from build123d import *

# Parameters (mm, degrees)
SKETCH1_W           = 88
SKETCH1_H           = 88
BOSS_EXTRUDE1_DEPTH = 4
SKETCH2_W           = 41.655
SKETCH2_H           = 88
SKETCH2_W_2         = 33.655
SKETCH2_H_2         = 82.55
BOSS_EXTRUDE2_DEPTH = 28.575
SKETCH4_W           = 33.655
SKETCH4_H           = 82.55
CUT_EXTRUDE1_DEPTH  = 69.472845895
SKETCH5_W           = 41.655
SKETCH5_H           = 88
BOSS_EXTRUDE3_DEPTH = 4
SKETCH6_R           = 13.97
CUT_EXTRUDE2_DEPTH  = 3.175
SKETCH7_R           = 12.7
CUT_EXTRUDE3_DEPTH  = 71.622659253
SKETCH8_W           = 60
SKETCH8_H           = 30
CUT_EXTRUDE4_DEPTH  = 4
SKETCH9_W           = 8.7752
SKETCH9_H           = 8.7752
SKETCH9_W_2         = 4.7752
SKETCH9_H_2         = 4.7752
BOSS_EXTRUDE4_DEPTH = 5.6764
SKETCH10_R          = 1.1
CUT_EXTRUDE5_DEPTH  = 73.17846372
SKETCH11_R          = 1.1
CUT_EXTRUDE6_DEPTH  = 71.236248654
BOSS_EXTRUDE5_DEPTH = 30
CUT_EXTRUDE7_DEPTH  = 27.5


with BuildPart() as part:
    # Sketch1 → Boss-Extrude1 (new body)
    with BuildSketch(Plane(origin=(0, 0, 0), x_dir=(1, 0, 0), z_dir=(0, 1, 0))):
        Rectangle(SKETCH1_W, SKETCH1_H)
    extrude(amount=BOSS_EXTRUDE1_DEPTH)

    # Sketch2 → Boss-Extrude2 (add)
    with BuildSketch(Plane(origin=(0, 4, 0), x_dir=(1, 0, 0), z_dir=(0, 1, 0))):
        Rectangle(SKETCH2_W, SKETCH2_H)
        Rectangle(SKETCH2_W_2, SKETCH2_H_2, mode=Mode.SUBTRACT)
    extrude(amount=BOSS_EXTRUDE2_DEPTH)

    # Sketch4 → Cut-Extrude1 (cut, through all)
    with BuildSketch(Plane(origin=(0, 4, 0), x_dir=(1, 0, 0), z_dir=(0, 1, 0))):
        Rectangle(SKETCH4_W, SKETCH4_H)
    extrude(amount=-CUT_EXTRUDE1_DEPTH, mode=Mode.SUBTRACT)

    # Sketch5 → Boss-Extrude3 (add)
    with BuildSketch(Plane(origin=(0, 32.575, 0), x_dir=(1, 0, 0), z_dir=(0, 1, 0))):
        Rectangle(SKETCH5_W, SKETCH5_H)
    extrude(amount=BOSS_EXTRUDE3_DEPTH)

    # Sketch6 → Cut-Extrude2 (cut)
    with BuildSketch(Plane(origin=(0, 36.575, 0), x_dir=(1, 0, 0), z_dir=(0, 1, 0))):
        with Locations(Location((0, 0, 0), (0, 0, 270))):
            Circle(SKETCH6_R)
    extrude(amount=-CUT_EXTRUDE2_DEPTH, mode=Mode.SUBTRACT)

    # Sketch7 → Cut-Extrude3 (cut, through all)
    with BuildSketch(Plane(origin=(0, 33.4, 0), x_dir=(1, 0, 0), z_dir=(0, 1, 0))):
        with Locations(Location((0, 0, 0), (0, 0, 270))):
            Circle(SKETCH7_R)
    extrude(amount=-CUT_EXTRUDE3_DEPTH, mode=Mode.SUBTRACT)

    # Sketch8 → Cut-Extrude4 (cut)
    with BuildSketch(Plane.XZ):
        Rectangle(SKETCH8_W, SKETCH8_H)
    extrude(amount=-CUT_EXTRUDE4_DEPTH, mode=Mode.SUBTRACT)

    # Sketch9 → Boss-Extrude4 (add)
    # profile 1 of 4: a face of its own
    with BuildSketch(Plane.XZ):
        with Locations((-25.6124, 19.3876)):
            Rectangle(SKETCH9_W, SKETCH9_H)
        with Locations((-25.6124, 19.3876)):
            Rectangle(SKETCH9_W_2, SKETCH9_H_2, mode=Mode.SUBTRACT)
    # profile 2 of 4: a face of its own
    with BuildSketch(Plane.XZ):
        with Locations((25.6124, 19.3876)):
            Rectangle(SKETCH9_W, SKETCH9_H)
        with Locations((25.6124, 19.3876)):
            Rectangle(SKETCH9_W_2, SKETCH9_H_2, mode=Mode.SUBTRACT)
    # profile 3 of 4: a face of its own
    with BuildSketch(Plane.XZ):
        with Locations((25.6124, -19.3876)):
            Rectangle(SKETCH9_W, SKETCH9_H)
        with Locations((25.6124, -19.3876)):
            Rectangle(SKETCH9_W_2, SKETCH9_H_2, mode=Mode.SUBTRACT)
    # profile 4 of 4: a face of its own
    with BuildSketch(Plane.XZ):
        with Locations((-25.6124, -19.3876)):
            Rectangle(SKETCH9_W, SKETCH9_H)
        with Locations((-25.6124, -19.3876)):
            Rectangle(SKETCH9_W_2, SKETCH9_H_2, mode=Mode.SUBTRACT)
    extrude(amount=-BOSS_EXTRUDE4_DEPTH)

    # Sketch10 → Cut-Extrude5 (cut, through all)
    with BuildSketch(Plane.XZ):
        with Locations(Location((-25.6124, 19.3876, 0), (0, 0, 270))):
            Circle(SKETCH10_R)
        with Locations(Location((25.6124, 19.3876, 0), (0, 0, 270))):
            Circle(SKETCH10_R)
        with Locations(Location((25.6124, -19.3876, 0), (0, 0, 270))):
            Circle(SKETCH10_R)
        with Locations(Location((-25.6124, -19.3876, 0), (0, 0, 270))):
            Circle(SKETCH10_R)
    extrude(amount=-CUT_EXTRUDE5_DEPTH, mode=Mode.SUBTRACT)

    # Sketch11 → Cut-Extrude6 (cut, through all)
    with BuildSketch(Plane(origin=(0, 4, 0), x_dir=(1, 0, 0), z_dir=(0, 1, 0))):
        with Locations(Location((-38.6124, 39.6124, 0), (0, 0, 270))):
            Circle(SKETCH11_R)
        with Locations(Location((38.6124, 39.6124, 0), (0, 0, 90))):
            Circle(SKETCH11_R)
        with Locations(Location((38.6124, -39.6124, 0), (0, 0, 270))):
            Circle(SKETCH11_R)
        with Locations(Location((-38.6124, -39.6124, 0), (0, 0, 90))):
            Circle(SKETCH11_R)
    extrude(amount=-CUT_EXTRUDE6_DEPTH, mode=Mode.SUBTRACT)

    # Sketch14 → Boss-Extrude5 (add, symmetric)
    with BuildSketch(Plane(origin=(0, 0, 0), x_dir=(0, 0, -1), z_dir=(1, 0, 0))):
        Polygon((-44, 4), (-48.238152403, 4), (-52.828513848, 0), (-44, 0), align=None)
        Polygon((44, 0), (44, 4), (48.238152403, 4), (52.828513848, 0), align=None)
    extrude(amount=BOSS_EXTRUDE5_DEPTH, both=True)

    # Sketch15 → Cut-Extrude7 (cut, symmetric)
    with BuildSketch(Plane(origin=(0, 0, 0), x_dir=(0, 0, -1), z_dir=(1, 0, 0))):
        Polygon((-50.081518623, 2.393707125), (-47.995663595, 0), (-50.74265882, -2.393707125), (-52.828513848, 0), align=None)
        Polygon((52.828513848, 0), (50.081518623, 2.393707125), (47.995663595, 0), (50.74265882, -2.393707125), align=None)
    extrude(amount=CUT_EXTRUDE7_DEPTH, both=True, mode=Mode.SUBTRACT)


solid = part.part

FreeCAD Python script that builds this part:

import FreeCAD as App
import Part
import Sketcher
Q = App.Units.Quantity


def add_polygon(sketch, points):
    """Adds a closed chain of lines whose ends are joined by coincident constraints."""
    first, n = sketch.GeometryCount, len(points)
    for a, b in zip(points, points[1:] + points[:1]):
        sketch.addGeometry(Part.LineSegment(App.Vector(*a, 0), App.Vector(*b, 0)), False)
    for i in range(n):
        sketch.addConstraint(Sketcher.Constraint("Coincident", first + i, 2, first + (i + 1) % n, 1))

doc = App.newDocument("Part")
body = doc.addObject("PartDesign::Body", "Body")

# Sketch on XZ plane
sketch1 = body.newObject("Sketcher::SketchObject", "Sketch")
sketch1.AttachmentSupport = (doc.getObject("XZ_Plane"), [""])
sketch1.MapMode = "FlatFace"
add_polygon(sketch1, [(-44, -44), (-44, 44), (44, 44), (44, -44)])  # lines 0-3
sketch1.addConstraint(Sketcher.Constraint("Vertical", 0))
sketch1.addConstraint(Sketcher.Constraint("Horizontal", 1))
sketch1.addConstraint(Sketcher.Constraint("Vertical", 2))
sketch1.addConstraint(Sketcher.Constraint("Horizontal", 3))
sketch1.addConstraint(Sketcher.Constraint("Symmetric", 0, 2, 2, 2, -1, 1))
sketch1.addConstraint(Sketcher.Constraint("Equal", 3, 0))
sketch1.addConstraint(Sketcher.Constraint("DistanceX", 1, 1, 1, 2, Q("88 mm")))
pad1 = body.newObject("PartDesign::Pad", "Pad")
pad1.Profile = sketch1
pad1.Length = 4
pad1.Reversed = True

# Sketch on XZ plane
sketch2 = body.newObject("Sketcher::SketchObject", "Sketch001")
sketch2.AttachmentSupport = (doc.getObject("XZ_Plane"), [""])
sketch2.MapMode = "FlatFace"
sketch2.AttachmentOffset = App.Placement(App.Vector(0, 0, -4), App.Rotation())
add_polygon(sketch2, [(-21, -44), (-21, 44), (21, 44), (21, -44)])  # lines 0-3
add_polygon(sketch2, [(17, 41), (-17, 41), (-17, -41), (17, -41)])  # lines 4-7
sketch2.addConstraint(Sketcher.Constraint("Vertical", 0))
sketch2.addConstraint(Sketcher.Constraint("Horizontal", 1))
sketch2.addConstraint(Sketcher.Constraint("Vertical", 2))
sketch2.addConstraint(Sketcher.Constraint("Horizontal", 3))
sketch2.addConstraint(Sketcher.Constraint("Horizontal", 4))
sketch2.addConstraint(Sketcher.Constraint("Vertical", 5))
sketch2.addConstraint(Sketcher.Constraint("Horizontal", 6))
sketch2.addConstraint(Sketcher.Constraint("Vertical", 7))
sketch2.addConstraint(Sketcher.Constraint("Symmetric", 0, 2, 2, 2, -1, 1))
sketch2.addConstraint(Sketcher.Constraint("Symmetric", 4, 2, 6, 2, -1, 1))
sketch2.addConstraint(Sketcher.Constraint("DistanceY", 5, 2, 5, 1, Q("3.25 in")))
sketch2.addConstraint(Sketcher.Constraint("DistanceX", 4, 2, 4, 1, Q("1.325 in")))
sketch2.addConstraint(Sketcher.Constraint("DistanceX", 1, 1, 1, 2, Q("41.655 mm")))
sketch2.addConstraint(Sketcher.Constraint("DistanceY", 0, 1, 0, 2, Q("88 mm")))
pad2 = body.newObject("PartDesign::Pad", "Pad001")
pad2.Profile = sketch2
pad2.Length = Q("1.125 in")
pad2.Reversed = True

# Sketch on XZ plane
sketch3 = body.newObject("Sketcher::SketchObject", "Sketch002")
sketch3.AttachmentSupport = (doc.getObject("XZ_Plane"), [""])
sketch3.MapMode = "FlatFace"
sketch3.AttachmentOffset = App.Placement(App.Vector(0, 0, -4), App.Rotation())
add_polygon(sketch3, [(-17, -41), (-17, 41), (17, 41), (17, -41)])  # lines 0-3
sketch3.addConstraint(Sketcher.Constraint("Vertical", 0))
sketch3.addConstraint(Sketcher.Constraint("Horizontal", 1))
sketch3.addConstraint(Sketcher.Constraint("Vertical", 2))
sketch3.addConstraint(Sketcher.Constraint("Horizontal", 3))
sketch3.addConstraint(Sketcher.Constraint("Symmetric", 0, 2, 2, 2, -1, 1))
sketch3.addConstraint(Sketcher.Constraint("DistanceY", 0, 1, 0, 2, Q("3.25 in")))
sketch3.addConstraint(Sketcher.Constraint("DistanceX", 1, 1, 1, 2, Q("1.325 in")))
pocket1 = body.newObject("PartDesign::Pocket", "Pocket")
pocket1.Profile = sketch3
pocket1.Type = "ThroughAll"
pocket1.Reversed = True

# Sketch on XZ plane
sketch4 = body.newObject("Sketcher::SketchObject", "Sketch003")
sketch4.AttachmentSupport = (doc.getObject("XZ_Plane"), [""])
sketch4.MapMode = "FlatFace"
sketch4.AttachmentOffset = App.Placement(App.Vector(0, 0, -32.575), App.Rotation())
add_polygon(sketch4, [(-21, -44), (-21, 44), (21, 44), (21, -44)])  # lines 0-3
sketch4.addConstraint(Sketcher.Constraint("Vertical", 0))
sketch4.addConstraint(Sketcher.Constraint("Horizontal", 1))
sketch4.addConstraint(Sketcher.Constraint("Vertical", 2))
sketch4.addConstraint(Sketcher.Constraint("Horizontal", 3))
sketch4.addConstraint(Sketcher.Constraint("Symmetric", 0, 2, 2, 2, -1, 1))
sketch4.addConstraint(Sketcher.Constraint("DistanceX", 1, 1, 1, 2, Q("41.655 mm")))
sketch4.addConstraint(Sketcher.Constraint("DistanceY", 0, 1, 0, 2, Q("88 mm")))
pad3 = body.newObject("PartDesign::Pad", "Pad002")
pad3.Profile = sketch4
pad3.Length = 4
pad3.Reversed = True

# Sketch on XZ plane
sketch5 = body.newObject("Sketcher::SketchObject", "Sketch004")
sketch5.AttachmentSupport = (doc.getObject("XZ_Plane"), [""])
sketch5.MapMode = "FlatFace"
sketch5.AttachmentOffset = App.Placement(App.Vector(0, 0, -36.575), App.Rotation())
sketch5.addGeometry(Part.Circle(App.Vector(0, 0, 0), App.Vector(0, 0, 1), 14), False)
sketch5.addConstraint(Sketcher.Constraint("Coincident", 0, 3, -1, 1))
sketch5.addConstraint(Sketcher.Constraint("Diameter", 0, Q("1.1 in")))
pocket2 = body.newObject("PartDesign::Pocket", "Pocket001")
pocket2.Profile = sketch5
pocket2.Length = Q("0.125 in")
pocket2.Reversed = True

# Sketch on XZ plane
sketch6 = body.newObject("Sketcher::SketchObject", "Sketch005")
sketch6.AttachmentSupport = (doc.getObject("XZ_Plane"), [""])
sketch6.MapMode = "FlatFace"
sketch6.AttachmentOffset = App.Placement(App.Vector(0, 0, -33.4), App.Rotation())
sketch6.addGeometry(Part.Circle(App.Vector(0, 0, 0), App.Vector(0, 0, 1), 13), False)
sketch6.addConstraint(Sketcher.Constraint("Coincident", 0, 3, -1, 1))
sketch6.addConstraint(Sketcher.Constraint("Diameter", 0, Q("1 in")))
pocket3 = body.newObject("PartDesign::Pocket", "Pocket002")
pocket3.Profile = sketch6
pocket3.Type = "ThroughAll"
pocket3.Reversed = True

# Sketch on XZ plane
sketch7 = body.newObject("Sketcher::SketchObject", "Sketch006")
sketch7.AttachmentSupport = (doc.getObject("XZ_Plane"), [""])
sketch7.MapMode = "FlatFace"
add_polygon(sketch7, [(-30, 15), (-30, -15), (30, -15), (30, 15)])  # lines 0-3
sketch7.addConstraint(Sketcher.Constraint("Vertical", 0))
sketch7.addConstraint(Sketcher.Constraint("Horizontal", 1))
sketch7.addConstraint(Sketcher.Constraint("Vertical", 2))
sketch7.addConstraint(Sketcher.Constraint("Horizontal", 3))
sketch7.addConstraint(Sketcher.Constraint("Symmetric", 0, 2, 2, 2, -1, 1))
sketch7.addConstraint(Sketcher.Constraint("DistanceX", 1, 1, 1, 2, Q("60 mm")))
sketch7.addConstraint(Sketcher.Constraint("DistanceY", 0, 2, 0, 1, Q("30 mm")))
pocket4 = body.newObject("PartDesign::Pocket", "Pocket003")
pocket4.Profile = sketch7
pocket4.Length = 4

# Sketch on XZ plane
sketch8 = body.newObject("Sketcher::SketchObject", "Sketch007")
sketch8.AttachmentSupport = (doc.getObject("XZ_Plane"), [""])
sketch8.MapMode = "FlatFace"
add_polygon(sketch8, [(-30, 23.8), (-30, 15), (-21.2, 15), (-21.2, 23.8)])  # lines 0-3
add_polygon(sketch8, [(-23.2, 17), (-28, 17), (-28, 21.8), (-23.2, 21.8)])  # lines 4-7
add_polygon(sketch8, [(21.2, 23.8), (21.2, 15), (30, 15), (30, 23.8)])  # lines 8-11
add_polygon(sketch8, [(28, 17), (23.2, 17), (23.2, 21.8), (28, 21.8)])  # lines 12-15
add_polygon(sketch8, [(21.2, -15), (21.2, -23.8), (30, -23.8), (30, -15)])  # lines 16-19
add_polygon(sketch8, [(28, -21.8), (23.2, -21.8), (23.2, -17), (28, -17)])  # lines 20-23
add_polygon(sketch8, [(-30, -15), (-30, -23.8), (-21.2, -23.8), (-21.2, -15)])  # lines 24-27
add_polygon(sketch8, [(-23.2, -21.8), (-28, -21.8), (-28, -17), (-23.2, -17)])  # lines 28-31
sketch8.addConstraint(Sketcher.Constraint("Vertical", 0))
sketch8.addConstraint(Sketcher.Constraint("Horizontal", 1))
sketch8.addConstraint(Sketcher.Constraint("Vertical", 2))
sketch8.addConstraint(Sketcher.Constraint("Horizontal", 3))
sketch8.addConstraint(Sketcher.Constraint("Horizontal", 4))
sketch8.addConstraint(Sketcher.Constraint("Vertical", 5))
sketch8.addConstraint(Sketcher.Constraint("Horizontal", 6))
sketch8.addConstraint(Sketcher.Constraint("Vertical", 7))
sketch8.addConstraint(Sketcher.Constraint("Vertical", 8))
sketch8.addConstraint(Sketcher.Constraint("Horizontal", 9))
sketch8.addConstraint(Sketcher.Constraint("Vertical", 10))
sketch8.addConstraint(Sketcher.Constraint("Horizontal", 11))
sketch8.addConstraint(Sketcher.Constraint("Horizontal", 12))
sketch8.addConstraint(Sketcher.Constraint("Vertical", 13))
sketch8.addConstraint(Sketcher.Constraint("Horizontal", 14))
sketch8.addConstraint(Sketcher.Constraint("Vertical", 15))
sketch8.addConstraint(Sketcher.Constraint("Vertical", 16))
sketch8.addConstraint(Sketcher.Constraint("Horizontal", 17))
sketch8.addConstraint(Sketcher.Constraint("Vertical", 18))
sketch8.addConstraint(Sketcher.Constraint("Horizontal", 19))
sketch8.addConstraint(Sketcher.Constraint("Horizontal", 20))
sketch8.addConstraint(Sketcher.Constraint("Vertical", 21))
sketch8.addConstraint(Sketcher.Constraint("Horizontal", 22))
sketch8.addConstraint(Sketcher.Constraint("Vertical", 23))
sketch8.addConstraint(Sketcher.Constraint("Vertical", 24))
sketch8.addConstraint(Sketcher.Constraint("Horizontal", 25))
sketch8.addConstraint(Sketcher.Constraint("Vertical", 26))
sketch8.addConstraint(Sketcher.Constraint("Horizontal", 27))
sketch8.addConstraint(Sketcher.Constraint("Horizontal", 28))
sketch8.addConstraint(Sketcher.Constraint("Vertical", 29))
sketch8.addConstraint(Sketcher.Constraint("Horizontal", 30))
sketch8.addConstraint(Sketcher.Constraint("Vertical", 31))
sketch8.addConstraint(Sketcher.Constraint("Symmetric", 2, 2, 16, 2, -1, 1))
sketch8.addConstraint(Sketcher.Constraint("Symmetric", 0, 2, 18, 2, -1, 1))
sketch8.addConstraint(Sketcher.Constraint("Symmetric", 6, 2, 20, 2, -1, 1))
sketch8.addConstraint(Sketcher.Constraint("Symmetric", 4, 2, 22, 2, -1, 1))
sketch8.addConstraint(Sketcher.Constraint("Symmetric", 10, 2, 24, 2, -1, 1))
sketch8.addConstraint(Sketcher.Constraint("Symmetric", 8, 2, 26, 2, -1, 1))
sketch8.addConstraint(Sketcher.Constraint("Symmetric", 14, 2, 28, 2, -1, 1))
sketch8.addConstraint(Sketcher.Constraint("Symmetric", 12, 2, 30, 2, -1, 1))
sketch8.addConstraint(Sketcher.Constraint("Symmetric", 1, 2, 8, 2, -2))
sketch8.addConstraint(Sketcher.Constraint("Symmetric", 3, 2, 10, 2, -2))
sketch8.addConstraint(Sketcher.Constraint("Symmetric", 7, 2, 12, 2, -2))
sketch8.addConstraint(Sketcher.Constraint("Symmetric", 5, 2, 14, 2, -2))
sketch8.addConstraint(Sketcher.Constraint("Equal", 27, 0))
sketch8.addConstraint(Sketcher.Constraint("Equal", 30, 5))
sketch8.addConstraint(Sketcher.Constraint("DistanceX", 4, 2, 4, 1, Q("0.188 in")))
sketch8.addConstraint(Sketcher.Constraint("DistanceX", 1, 1, 1, 2, Q("8.7752 mm")))
sketch8.addConstraint(Sketcher.Constraint("DistanceX", 0, 2, -1, 1, Q("30 mm")))
sketch8.addConstraint(Sketcher.Constraint("DistanceY", -1, 1, 0, 2, Q("15 mm")))
sketch8.addConstraint(Sketcher.Constraint("DistanceX", 4, 2, -1, 1, Q("28 mm")))
sketch8.addConstraint(Sketcher.Constraint("DistanceY", -1, 1, 4, 2, Q("17 mm")))
pad4 = body.newObject("PartDesign::Pad", "Pad003")
pad4.Profile = sketch8
pad4.Length = 5.6764
pad4.Reversed = True

# Sketch on XZ plane
sketch9 = body.newObject("Sketcher::SketchObject", "Sketch008")
sketch9.AttachmentSupport = (doc.getObject("XZ_Plane"), [""])
sketch9.MapMode = "FlatFace"
sketch9.addGeometry(Part.Circle(App.Vector(-25.6, 19.4, 0), App.Vector(0, 0, 1), 1.1), False)
sketch9.addGeometry(Part.Circle(App.Vector(25.6, 19.4, 0), App.Vector(0, 0, 1), 1.1), False)
sketch9.addGeometry(Part.Circle(App.Vector(25.6, -19.4, 0), App.Vector(0, 0, 1), 1.1), False)
sketch9.addGeometry(Part.Circle(App.Vector(-25.6, -19.4, 0), App.Vector(0, 0, 1), 1.1), False)
sketch9.addConstraint(Sketcher.Constraint("Equal", 0, 1))
sketch9.addConstraint(Sketcher.Constraint("Equal", 1, 2))
sketch9.addConstraint(Sketcher.Constraint("Equal", 2, 3))
sketch9.addConstraint(Sketcher.Constraint("Symmetric", 0, 3, 2, 3, -1, 1))
sketch9.addConstraint(Sketcher.Constraint("Symmetric", 1, 3, 3, 3, -1, 1))
sketch9.addConstraint(Sketcher.Constraint("Symmetric", 0, 3, 1, 3, -2))
sketch9.addConstraint(Sketcher.Constraint("Diameter", 0, Q("2.2 mm")))
sketch9.addConstraint(Sketcher.Constraint("DistanceX", 0, 3, -1, 1, Q("25.6124 mm")))
sketch9.addConstraint(Sketcher.Constraint("DistanceY", -1, 1, 0, 3, Q("19.3876 mm")))
pocket5 = body.newObject("PartDesign::Pocket", "Pocket004")
pocket5.Profile = sketch9
pocket5.Type = "ThroughAll"

# Sketch on XZ plane
sketch10 = body.newObject("Sketcher::SketchObject", "Sketch009")
sketch10.AttachmentSupport = (doc.getObject("XZ_Plane"), [""])
sketch10.MapMode = "FlatFace"
sketch10.AttachmentOffset = App.Placement(App.Vector(0, 0, -4), App.Rotation())
sketch10.addGeometry(Part.Circle(App.Vector(-38.6, -39.6, 0), App.Vector(0, 0, 1), 1.1), False)
sketch10.addGeometry(Part.Circle(App.Vector(38.6, -39.6, 0), App.Vector(0, 0, 1), 1.1), False)
sketch10.addGeometry(Part.Circle(App.Vector(38.6, 39.6, 0), App.Vector(0, 0, 1), 1.1), False)
sketch10.addGeometry(Part.Circle(App.Vector(-38.6, 39.6, 0), App.Vector(0, 0, 1), 1.1), False)
sketch10.addConstraint(Sketcher.Constraint("Equal", 0, 1))
sketch10.addConstraint(Sketcher.Constraint("Equal", 1, 2))
sketch10.addConstraint(Sketcher.Constraint("Equal", 2, 3))
sketch10.addConstraint(Sketcher.Constraint("Symmetric", 0, 3, 2, 3, -1, 1))
sketch10.addConstraint(Sketcher.Constraint("Symmetric", 1, 3, 3, 3, -1, 1))
sketch10.addConstraint(Sketcher.Constraint("Symmetric", 0, 3, 1, 3, -2))
sketch10.addConstraint(Sketcher.Constraint("Diameter", 0, Q("2.2 mm")))
sketch10.addConstraint(Sketcher.Constraint("DistanceX", 0, 3, -1, 1, Q("38.6124 mm")))
sketch10.addConstraint(Sketcher.Constraint("DistanceY", 0, 3, -1, 1, Q("39.6124 mm")))
pocket6 = body.newObject("PartDesign::Pocket", "Pocket005")
pocket6.Profile = sketch10
pocket6.Type = "ThroughAll"
pocket6.Reversed = True

# Sketch on YZ plane
sketch11 = body.newObject("Sketcher::SketchObject", "Sketch010")
sketch11.AttachmentSupport = (doc.getObject("YZ_Plane"), [""])
sketch11.MapMode = "FlatFace"
add_polygon(sketch11, [(4, 44), (4, 48.2), (0, 52.8), (0, 44)])  # lines 0-3
add_polygon(sketch11, [(4, -44), (0, -44), (0, -52.8), (4, -48.2)])  # lines 4-7
sketch11.addConstraint(Sketcher.Constraint("Vertical", 0))
sketch11.addConstraint(Sketcher.Constraint("Vertical", 2))
sketch11.addConstraint(Sketcher.Constraint("Horizontal", 3))
sketch11.addConstraint(Sketcher.Constraint("Horizontal", 4))
sketch11.addConstraint(Sketcher.Constraint("Vertical", 5))
sketch11.addConstraint(Sketcher.Constraint("Vertical", 7))
sketch11.addConstraint(Sketcher.Constraint("Symmetric", 2, 2, 4, 2, -1, 1))
sketch11.addConstraint(Sketcher.Constraint("Symmetric", 1, 2, 5, 2, -1))
sketch11.addConstraint(Sketcher.Constraint("Symmetric", 0, 2, 6, 2, -1))
sketch11.addConstraint(Sketcher.Constraint("DistanceX", 3, 1, 3, 2, Q("4 mm")))
sketch11.addConstraint(Sketcher.Constraint("DistanceY", -1, 1, 2, 2, Q("44 mm")))
sketch11.addConstraint(Sketcher.Constraint("Distance", 1, Q("6.08863 mm")))
sketch11.addConstraint(Sketcher.Constraint("DistanceY", 0, 1, 0, 2, Q("4.238152 mm")))
pad5 = body.newObject("PartDesign::Pad", "Pad004")
pad5.Profile = sketch11
pad5.Length = 60
pad5.Midplane = True

# Sketch on YZ plane
sketch12 = body.newObject("Sketcher::SketchObject", "Sketch011")
sketch12.AttachmentSupport = (doc.getObject("YZ_Plane"), [""])
sketch12.MapMode = "FlatFace"
add_polygon(sketch12, [(0, 48), (2.4, 50.1), (0, 52.8), (-2.4, 50.7)])  # lines 0-3
add_polygon(sketch12, [(0, -52.8), (2.4, -50.1), (0, -48), (-2.4, -50.7)])  # lines 4-7
sketch12.addConstraint(Sketcher.Constraint("Symmetric", 3, 2, 5, 2, -1, 1))
sketch12.addConstraint(Sketcher.Constraint("Symmetric", 1, 2, 7, 2, -1, 1))
sketch12.addConstraint(Sketcher.Constraint("Symmetric", 0, 2, 4, 2, -1))
sketch12.addConstraint(Sketcher.Constraint("Symmetric", 2, 2, 6, 2, -1))
sketch12.addConstraint(Sketcher.Constraint("PointOnObject", 1, 2, -2))
sketch12.addConstraint(Sketcher.Constraint("PointOnObject", 3, 2, -2))
sketch12.addConstraint(Sketcher.Constraint("Perpendicular", 0, 1))
sketch12.addConstraint(Sketcher.Constraint("Perpendicular", 1, 2))
sketch12.addConstraint(Sketcher.Constraint("Perpendicular", 2, 3))
sketch12.addConstraint(Sketcher.Constraint("Distance", 0, Q("0.125 in")))
sketch12.addConstraint(Sketcher.Constraint("Distance", 1, Q("3.643599 mm")))
sketch12.addConstraint(Sketcher.Constraint("DistanceY", -1, 1, 0, 2, Q("50.081519 mm")))
pocket7 = body.newObject("PartDesign::Pocket", "Pocket006")
pocket7.Profile = sketch12
pocket7.Length = 55
pocket7.Midplane = True

doc.recompute()
